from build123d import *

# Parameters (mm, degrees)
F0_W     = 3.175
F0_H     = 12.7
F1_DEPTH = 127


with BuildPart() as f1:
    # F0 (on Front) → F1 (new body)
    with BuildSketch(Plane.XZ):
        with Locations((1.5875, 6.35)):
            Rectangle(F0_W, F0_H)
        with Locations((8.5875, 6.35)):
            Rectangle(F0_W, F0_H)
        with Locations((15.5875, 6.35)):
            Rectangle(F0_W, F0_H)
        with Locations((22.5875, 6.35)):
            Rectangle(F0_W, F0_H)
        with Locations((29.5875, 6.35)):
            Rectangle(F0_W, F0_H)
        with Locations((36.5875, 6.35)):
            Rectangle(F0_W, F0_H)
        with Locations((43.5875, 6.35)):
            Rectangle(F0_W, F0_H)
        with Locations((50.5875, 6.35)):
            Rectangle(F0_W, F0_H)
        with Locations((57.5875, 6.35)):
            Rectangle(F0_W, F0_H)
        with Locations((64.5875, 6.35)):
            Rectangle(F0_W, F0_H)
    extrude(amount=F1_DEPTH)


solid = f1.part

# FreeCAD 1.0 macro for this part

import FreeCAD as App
import Part
import Sketcher
Q = App.Units.Quantity

doc = App.newDocument("Part")
body = doc.addObject("PartDesign::Body", "Body")
body.AllowCompound = True

# Sketch on XZ plane
sketch1 = body.newObject("Sketcher::SketchObject", "Sketch")
sketch1.AttachmentSupport = (doc.getObject("XZ_Plane"), [""])
sketch1.MapMode = "FlatFace"
sketch1.addGeometry(Part.LineSegment(App.Vector(0, 12.7, 0), App.Vector(0, 0, 0)), False)
sketch1.addGeometry(Part.LineSegment(App.Vector(0, 0, 0), App.Vector(3.2, 0, 0)), False)
sketch1.addGeometry(Part.LineSegment(App.Vector(3.2, 0, 0), App.Vector(3.2, 12.7, 0)), False)
sketch1.addGeometry(Part.LineSegment(App.Vector(3.2, 12.7, 0), App.Vector(0, 12.7, 0)), False)
sketch1.addGeometry(Part.LineSegment(App.Vector(7, 12.7, 0), App.Vector(7, 0, 0)), False)
sketch1.addGeometry(Part.LineSegment(App.Vector(7, 0, 0), App.Vector(10.2, 0, 0)), False)
sketch1.addGeometry(Part.LineSegment(App.Vector(10.2, 0, 0), App.Vector(10.2, 12.7, 0)), False)
sketch1.addGeometry(Part.LineSegment(App.Vector(10.2, 12.7, 0), App.Vector(7, 12.7, 0)), False)
sketch1.addGeometry(Part.LineSegment(App.Vector(14, 12.7, 0), App.Vector(14, 0, 0)), False)
sketch1.addGeometry(Part.LineSegment(App.Vector(14, 0, 0), App.Vector(17.2, 0, 0)), False)
sketch1.addGeometry(Part.LineSegment(App.Vector(17.2, 0, 0), App.Vector(17.2, 12.7, 0)), False)
sketch1.addGeometry(Part.LineSegment(App.Vector(17.2, 12.7, 0), App.Vector(14, 12.7, 0)), False)
sketch1.addGeometry(Part.LineSegment(App.Vector(21, 12.7, 0), App.Vector(21, 0, 0)), False)
sketch1.addGeometry(Part.LineSegment(App.Vector(21, 0, 0), App.Vector(24.2, 0, 0)), False)
sketch1.addGeometry(Part.LineSegment(App.Vector(24.2, 0, 0), App.Vector(24.2, 12.7, 0)), False)
sketch1.addGeometry(Part.LineSegment(App.Vector(24.2, 12.7, 0), App.Vector(21, 12.7, 0)), False)
sketch1.addGeometry(Part.LineSegment(App.Vector(28, 12.7, 0), App.Vector(28, 0, 0)), False)
sketch1.addGeometry(Part.LineSegment(App.Vector(28, 0, 0), App.Vector(31.2, 0, 0)), False)
sketch1.addGeometry(Part.LineSegment(App.Vector(31.2, 0, 0), App.Vector(31.2, 12.7, 0)), False)
sketch1.addGeometry(Part.LineSegment(App.Vector(31.2, 12.7, 0), App.Vector(28, 12.7, 0)), False)
sketch1.addGeometry(Part.LineSegment(App.Vector(35, 12.7, 0), App.Vector(35, 0, 0)), False)
sketch1.addGeometry(Part.LineSegment(App.Vector(35, 0, 0), App.Vector(38.2, 0, 0)), False)
sketch1.addGeometry(Part.LineSegment(App.Vector(38.2, 0, 0), App.Vector(38.2, 12.7, 0)), False)
sketch1.addGeometry(Part.LineSegment(App.Vector(38.2, 12.7, 0), App.Vector(35, 12.7, 0)), False)
sketch1.addGeometry(Part.LineSegment(App.Vector(42, 12.7, 0), App.Vector(42, 0, 0)), False)
sketch1.addGeometry(Part.LineSegment(App.Vector(42, 0, 0), App.Vector(45.2, 0, 0)), False)
sketch1.addGeometry(Part.LineSegment(App.Vector(45.2, 0, 0), App.Vector(45.2, 12.7, 0)), False)
sketch1.addGeometry(Part.LineSegment(App.Vector(45.2, 12.7, 0), App.Vector(42, 12.7, 0)), False)
sketch1.addGeometry(Part.LineSegment(App.Vector(49, 12.7, 0), App.Vector(49, 0, 0)), False)
sketch1.addGeometry(Part.LineSegment(App.Vector(49, 0, 0), App.Vector(52.2, 0, 0)), False)
sketch1.addGeometry(Part.LineSegment(App.Vector(52.2, 0, 0), App.Vector(52.2, 12.7, 0)), False)
sketch1.addGeometry(Part.LineSegment(App.Vector(52.2, 12.7, 0), App.Vector(49, 12.7, 0)), False)
sketch1.addGeometry(Part.LineSegment(App.Vector(56, 12.7, 0), App.Vector(56, 0, 0)), False)
sketch1.addGeometry(Part.LineSegment(App.Vector(56, 0, 0), App.Vector(59.2, 0, 0)), False)
sketch1.addGeometry(Part.LineSegment(App.Vector(59.2, 0, 0), App.Vector(59.2, 12.7, 0)), False)
sketch1.addGeometry(Part.LineSegment(App.Vector(59.2, 12.7, 0), App.Vector(56, 12.7, 0)), False)
sketch1.addGeometry(Part.LineSegment(App.Vector(63, 12.7, 0), App.Vector(63, 0, 0)), False)
sketch1.addGeometry(Part.LineSegment(App.Vector(63, 0, 0), App.Vector(66.2, 0, 0)), False)
sketch1.addGeometry(Part.LineSegment(App.Vector(66.2, 0, 0), App.Vector(66.2, 12.7, 0)), False)
sketch1.addGeometry(Part.LineSegment(App.Vector(66.2, 12.7, 0), App.Vector(63, 12.7, 0)), False)
sketch1.addConstraint(Sketcher.Constraint("Coincident", 0, 2, 1, 1))
sketch1.addConstraint(Sketcher.Constraint("Coincident", 1, 2, 2, 1))
sketch1.addConstraint(Sketcher.Constraint("Coincident", 2, 2, 3, 1))
sketch1.addConstraint(Sketcher.Constraint("Coincident", 3, 2, 0, 1))
sketch1.addConstraint(Sketcher.Constraint("Coincident", 4, 2, 5, 1))
sketch1.addConstraint(Sketcher.Constraint("Coincident", 5, 2, 6, 1))
sketch1.addConstraint(Sketcher.Constraint("Coincident", 6, 2, 7, 1))
sketch1.addConstraint(Sketcher.Constraint("Coincident", 7, 2, 4, 1))
sketch1.addConstraint(Sketcher.Constraint("Coincident", 8, 2, 9, 1))
sketch1.addConstraint(Sketcher.Constraint("Coincident", 9, 2, 10, 1))
sketch1.addConstraint(Sketcher.Constraint("Coincident", 10, 2, 11, 1))
sketch1.addConstraint(Sketcher.Constraint("Coincident", 11, 2, 8, 1))
sketch1.addConstraint(Sketcher.Constraint("Coincident", 12, 2, 13, 1))
sketch1.addConstraint(Sketcher.Constraint("Coincident", 13, 2, 14, 1))
sketch1.addConstraint(Sketcher.Constraint("Coincident", 14, 2, 15, 1))
sketch1.addConstraint(Sketcher.Constraint("Coincident", 15, 2, 12, 1))
sketch1.addConstraint(Sketcher.Constraint("Coincident", 16, 2, 17, 1))
sketch1.addConstraint(Sketcher.Constraint("Coincident", 17, 2, 18, 1))
sketch1.addConstraint(Sketcher.Constraint("Coincident", 18, 2, 19, 1))
sketch1.addConstraint(Sketcher.Constraint("Coincident", 19, 2, 16, 1))
sketch1.addConstraint(Sketcher.Constraint("Coincident", 20, 2, 21, 1))
sketch1.addConstraint(Sketcher.Constraint("Coincident", 21, 2, 22, 1))
sketch1.addConstraint(Sketcher.Constraint("Coincident", 22, 2, 23, 1))
sketch1.addConstraint(Sketcher.Constraint("Coincident", 23, 2, 20, 1))
sketch1.addConstraint(Sketcher.Constraint("Coincident", 24, 2, 25, 1))
sketch1.addConstraint(Sketcher.Constraint("Coincident", 25, 2, 26, 1))
sketch1.addConstraint(Sketcher.Constraint("Coincident", 26, 2, 27, 1))
sketch1.addConstraint(Sketcher.Constraint("Coincident", 27, 2, 24, 1))
sketch1.addConstraint(Sketcher.Constraint("Coincident", 28, 2, 29, 1))
sketch1.addConstraint(Sketcher.Constraint("Coincident", 29, 2, 30, 1))
sketch1.addConstraint(Sketcher.Constraint("Coincident", 30, 2, 31, 1))
sketch1.addConstraint(Sketcher.Constraint("Coincident", 31, 2, 28, 1))
sketch1.addConstraint(Sketcher.Constraint("Coincident", 32, 2, 33, 1))
sketch1.addConstraint(Sketcher.Constraint("Coincident", 33, 2, 34, 1))
sketch1.addConstraint(Sketcher.Constraint("Coincident", 34, 2, 35, 1))
sketch1.addConstraint(Sketcher.Constraint("Coincident", 35, 2, 32, 1))
sketch1.addConstraint(Sketcher.Constraint("Coincident", 36, 2, 37, 1))
sketch1.addConstraint(Sketcher.Constraint("Coincident", 37, 2, 38, 1))
sketch1.addConstraint(Sketcher.Constraint("Coincident", 38, 2, 39, 1))
sketch1.addConstraint(Sketcher.Constraint("Coincident", 39, 2, 36, 1))
sketch1.addConstraint(Sketcher.Constraint("Vertical", 0))
sketch1.addConstraint(Sketcher.Constraint("Horizontal", 1))
sketch1.addConstraint(Sketcher.Constraint("Vertical", 2))
sketch1.addConstraint(Sketcher.Constraint("Horizontal", 3))
sketch1.addConstraint(Sketcher.Constraint("Vertical", 4))
sketch1.addConstraint(Sketcher.Constraint("Horizontal", 5))
sketch1.addConstraint(Sketcher.Constraint("Vertical", 6))
sketch1.addConstraint(Sketcher.Constraint("Horizontal", 7))
sketch1.addConstraint(Sketcher.Constraint("Vertical", 8))
sketch1.addConstraint(Sketcher.Constraint("Horizontal", 9))
sketch1.addConstraint(Sketcher.Constraint("Vertical", 10))
sketch1.addConstraint(Sketcher.Constraint("Horizontal", 11))
sketch1.addConstraint(Sketcher.Constraint("Vertical", 12))
sketch1.addConstraint(Sketcher.Constraint("Horizontal", 13))
sketch1.addConstraint(Sketcher.Constraint("Vertical", 14))
sketch1.addConstraint(Sketcher.Constraint("Horizontal", 15))
sketch1.addConstraint(Sketcher.Constraint("Vertical", 16))
sketch1.addConstraint(Sketcher.Constraint("Horizontal", 17))
sketch1.addConstraint(Sketcher.Constraint("Vertical", 18))
sketch1.addConstraint(Sketcher.Constraint("Horizontal", 19))
sketch1.addConstraint(Sketcher.Constraint("Vertical", 20))
sketch1.addConstraint(Sketcher.Constraint("Horizontal", 21))
sketch1.addConstraint(Sketcher.Constraint("Vertical", 22))
sketch1.addConstraint(Sketcher.Constraint("Horizontal", 23))
sketch1.addConstraint(Sketcher.Constraint("Vertical", 24))
sketch1.addConstraint(Sketcher.Constraint("Horizontal", 25))
sketch1.addConstraint(Sketcher.Constraint("Vertical", 26))
sketch1.addConstraint(Sketcher.Constraint("Horizontal", 27))
sketch1.addConstraint(Sketcher.Constraint("Vertical", 28))
sketch1.addConstraint(Sketcher.Constraint("Horizontal", 29))
sketch1.addConstraint(Sketcher.Constraint("Vertical", 30))
sketch1.addConstraint(Sketcher.Constraint("Horizontal", 31))
sketch1.addConstraint(Sketcher.Constraint("Vertical", 32))
sketch1.addConstraint(Sketcher.Constraint("Horizontal", 33))
sketch1.addConstraint(Sketcher.Constraint("Vertical", 34))
sketch1.addConstraint(Sketcher.Constraint("Horizontal", 35))
sketch1.addConstraint(Sketcher.Constraint("Vertical", 36))
sketch1.addConstraint(Sketcher.Constraint("Horizontal", 37))
sketch1.addConstraint(Sketcher.Constraint("Vertical", 38))
sketch1.addConstraint(Sketcher.Constraint("Horizontal", 39))
sketch1.addConstraint(Sketcher.Constraint("Coincident", 0, 2, -1, 1))
sketch1.addConstraint(Sketcher.Constraint("PointOnObject", 4, 2, -1))
sketch1.addConstraint(Sketcher.Constraint("PointOnObject", 8, 2, -1))
sketch1.addConstraint(Sketcher.Constraint("PointOnObject", 12, 2, -1))
sketch1.addConstraint(Sketcher.Constraint("PointOnObject", 16, 2, -1))
sketch1.addConstraint(Sketcher.Constraint("PointOnObject", 20, 2, -1))
sketch1.addConstraint(Sketcher.Constraint("PointOnObject", 24, 2, -1))
sketch1.addConstraint(Sketcher.Constraint("PointOnObject", 28, 2, -1))
sketch1.addConstraint(Sketcher.Constraint("PointOnObject", 32, 2, -1))
sketch1.addConstraint(Sketcher.Constraint("PointOnObject", 36, 2, -1))
sketch1.addConstraint(Sketcher.Constraint("Horizontal", 3, 2, 6, 2))
sketch1.addConstraint(Sketcher.Constraint("Horizontal", 7, 2, 10, 2))
sketch1.addConstraint(Sketcher.Constraint("Horizontal", 11, 2, 14, 2))
sketch1.addConstraint(Sketcher.Constraint("Horizontal", 15, 2, 18, 2))
sketch1.addConstraint(Sketcher.Constraint("Horizontal", 19, 2, 22, 2))
sketch1.addConstraint(Sketcher.Constraint("Horizontal", 23, 2, 26, 2))
sketch1.addConstraint(Sketcher.Constraint("Horizontal", 27, 2, 30, 2))
sketch1.addConstraint(Sketcher.Constraint("Horizontal", 31, 2, 34, 2))
sketch1.addConstraint(Sketcher.Constraint("Horizontal", 35, 2, 38, 2))
sketch1.addConstraint(Sketcher.Constraint("Equal", 3, 5))
sketch1.addConstraint(Sketcher.Constraint("Equal", 7, 9))
sketch1.addConstraint(Sketcher.Constraint("Equal", 11, 13))
sketch1.addConstraint(Sketcher.Constraint("Equal", 15, 17))
sketch1.addConstraint(Sketcher.Constraint("Equal", 19, 21))
sketch1.addConstraint(Sketcher.Constraint("Equal", 23, 25))
sketch1.addConstraint(Sketcher.Constraint("Equal", 27, 29))
sketch1.addConstraint(Sketcher.Constraint("Equal", 31, 33))
sketch1.addConstraint(Sketcher.Constraint("Equal", 35, 37))
sketch1.addConstraint(Sketcher.Constraint("DistanceY", 0, 2, 0, 1, Q("0.5 in")))
sketch1.addConstraint(Sketcher.Constraint("DistanceX", 1, 1, 1, 2, Q("0.125 in")))
sketch1.addConstraint(Sketcher.Constraint("DistanceX", -1, 1, 4, 2, 7.0))
sketch1.addConstraint(Sketcher.Constraint("DistanceX", -1, 1, 8, 2, 14.0))
sketch1.addConstraint(Sketcher.Constraint("DistanceX", -1, 1, 12, 2, 21.0))
sketch1.addConstraint(Sketcher.Constraint("DistanceX", -1, 1, 16, 2, 28.0))
sketch1.addConstraint(Sketcher.Constraint("DistanceX", -1, 1, 20, 2, 35.0))
sketch1.addConstraint(Sketcher.Constraint("DistanceX", -1, 1, 24, 2, 42.0))
sketch1.addConstraint(Sketcher.Constraint("DistanceX", -1, 1, 28, 2, 49.0))
sketch1.addConstraint(Sketcher.Constraint("DistanceX", -1, 1, 32, 2, 56.0))
sketch1.addConstraint(Sketcher.Constraint("DistanceX", -1, 1, 36, 2, 63.0))
pad1 = body.newObject("PartDesign::Pad", "Pad")
pad1.Profile = sketch1
pad1.Length = Q("5 in")

doc.recompute()
